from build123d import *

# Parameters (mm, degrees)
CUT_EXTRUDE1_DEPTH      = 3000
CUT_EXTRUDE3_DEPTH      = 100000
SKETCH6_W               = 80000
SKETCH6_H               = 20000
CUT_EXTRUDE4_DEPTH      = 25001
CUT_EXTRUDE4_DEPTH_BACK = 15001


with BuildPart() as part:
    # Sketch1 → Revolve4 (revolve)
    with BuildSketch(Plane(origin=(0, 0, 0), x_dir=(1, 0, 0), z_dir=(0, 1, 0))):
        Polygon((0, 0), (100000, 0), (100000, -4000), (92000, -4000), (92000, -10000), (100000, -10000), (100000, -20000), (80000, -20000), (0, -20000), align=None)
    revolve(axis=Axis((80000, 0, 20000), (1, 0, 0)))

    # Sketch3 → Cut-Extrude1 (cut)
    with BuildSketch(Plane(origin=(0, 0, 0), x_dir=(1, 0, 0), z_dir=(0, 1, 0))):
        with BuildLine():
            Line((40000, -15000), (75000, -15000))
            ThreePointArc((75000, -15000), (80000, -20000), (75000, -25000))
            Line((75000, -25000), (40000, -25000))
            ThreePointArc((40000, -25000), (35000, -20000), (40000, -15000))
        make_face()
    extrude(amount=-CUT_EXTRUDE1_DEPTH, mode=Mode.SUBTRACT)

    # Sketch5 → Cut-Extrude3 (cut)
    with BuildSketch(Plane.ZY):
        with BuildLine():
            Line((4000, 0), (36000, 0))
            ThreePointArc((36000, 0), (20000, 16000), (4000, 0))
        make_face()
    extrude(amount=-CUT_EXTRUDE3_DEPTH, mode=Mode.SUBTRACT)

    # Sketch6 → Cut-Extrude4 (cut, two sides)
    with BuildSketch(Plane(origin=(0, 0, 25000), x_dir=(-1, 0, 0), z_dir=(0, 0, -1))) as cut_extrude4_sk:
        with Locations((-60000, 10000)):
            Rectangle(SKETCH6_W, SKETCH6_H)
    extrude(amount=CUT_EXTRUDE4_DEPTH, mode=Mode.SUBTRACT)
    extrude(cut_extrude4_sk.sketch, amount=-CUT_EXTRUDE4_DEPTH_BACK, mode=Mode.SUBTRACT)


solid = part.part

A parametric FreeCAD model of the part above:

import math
import FreeCAD as App
import Part
import Sketcher

V = App.Vector

doc = App.newDocument("Part")
params = doc.addObject("Spreadsheet::Sheet", "Params")
for row, (alias, value) in enumerate([
    ("sketch1_width", "100000 mm"),
    ("sketch1_width2", "8000 mm"),
    ("sketch1_height", "20000 mm"),
    ("sketch1_height2", "10000 mm"),
    ("sketch1_height3", "6000 mm"),
    ("revolution_angle", "360 deg"),
    ("sketch2_radius", "5000 mm"),
    ("sketch2_width", "35000 mm"),
    ("pocket1_length", "3000 mm"),
    ("sketch3_radius", "16000 mm"),
    ("pocket2_length", "100000 mm"),
    ("sketch4_width", "80000 mm"),
    ("sketch4_height", "20000 mm"),
], start=1):
    params.set(f"A{row}", alias)
    params.set(f"B{row}", "=" + value)
    params.setAlias(f"B{row}", alias)

body = doc.addObject("PartDesign::Body", "Body")

# Sketch on XZ plane
sketch1 = doc.addObject("Sketcher::SketchObject", "Sketch")
body.addObject(sketch1)
sketch1.AttachmentSupport = (doc.XZ_Plane, [""])
sketch1.MapMode = "FlatFace"
sketch1.addGeometry(Part.LineSegment(V(100000, 0, 0), V(0, 0, 0)), False)
sketch1.addGeometry(Part.LineSegment(V(0, 0, 0), V(0, 20000, 0)), False)
sketch1.addGeometry(Part.LineSegment(V(0, 20000, 0), V(100000, 20000, 0)), False)
sketch1.addGeometry(Part.LineSegment(V(100000, 20000, 0), V(100000, 10000, 0)), False)
sketch1.addGeometry(Part.LineSegment(V(100000, 10000, 0), V(92000, 10000, 0)), False)
sketch1.addGeometry(Part.LineSegment(V(92000, 10000, 0), V(92000, 4000, 0)), False)
sketch1.addGeometry(Part.LineSegment(V(92000, 4000, 0), V(100000, 4000, 0)), False)
sketch1.addGeometry(Part.LineSegment(V(100000, 4000, 0), V(100000, 0, 0)), False)
sketch1.addGeometry(Part.LineSegment(V(0, 20000, 0), V(100000, 20000, 0)), True)  # axis
sketch1.addConstraint(Sketcher.Constraint("Coincident", 0, 2, 1, 1))
sketch1.addConstraint(Sketcher.Constraint("Coincident", 1, 2, 2, 1))
sketch1.addConstraint(Sketcher.Constraint("Coincident", 2, 2, 3, 1))
sketch1.addConstraint(Sketcher.Constraint("Coincident", 3, 2, 4, 1))
sketch1.addConstraint(Sketcher.Constraint("Coincident", 4, 2, 5, 1))
sketch1.addConstraint(Sketcher.Constraint("Coincident", 5, 2, 6, 1))
sketch1.addConstraint(Sketcher.Constraint("Coincident", 6, 2, 7, 1))
sketch1.addConstraint(Sketcher.Constraint("Coincident", 7, 2, 0, 1))
sketch1.addConstraint(Sketcher.Constraint("Horizontal", 0))
sketch1.addConstraint(Sketcher.Constraint("Vertical", 1))
sketch1.addConstraint(Sketcher.Constraint("Horizontal", 2))
sketch1.addConstraint(Sketcher.Constraint("Vertical", 3))
sketch1.addConstraint(Sketcher.Constraint("Horizontal", 4))
sketch1.addConstraint(Sketcher.Constraint("Vertical", 5))
sketch1.addConstraint(Sketcher.Constraint("Horizontal", 6))
sketch1.addConstraint(Sketcher.Constraint("Vertical", 7))
sketch1.addConstraint(Sketcher.Constraint("Horizontal", 8))
sketch1.addConstraint(Sketcher.Constraint("Coincident", 0, 2, -1, 1))
sketch1.addConstraint(Sketcher.Constraint("Coincident", 8, 1, 1, 2))
sketch1.addConstraint(Sketcher.Constraint("Vertical", 3, 2, 6, 2))
sketch1.addConstraint(Sketcher.Constraint("Vertical", 7, 2, 8, 2))
sketch1.addConstraint(Sketcher.Constraint("DistanceX", 0, 2, 0, 1, 100000.0))
sketch1.addConstraint(Sketcher.Constraint("DistanceX", 4, 2, 4, 1, 8000.0))
sketch1.addConstraint(Sketcher.Constraint("DistanceY", 1, 1, 1, 2, 20000.0))
sketch1.addConstraint(Sketcher.Constraint("DistanceY", 3, 2, 3, 1, 10000.0))
sketch1.addConstraint(Sketcher.Constraint("DistanceY", 5, 2, 5, 1, 6000.0))
sketch1.setExpression("Constraints[21]", "Params.sketch1_width")
sketch1.setExpression("Constraints[22]", "Params.sketch1_width2")
sketch1.setExpression("Constraints[23]", "Params.sketch1_height")
sketch1.setExpression("Constraints[24]", "Params.sketch1_height2")
sketch1.setExpression("Constraints[25]", "Params.sketch1_height3")
revolution = doc.addObject("PartDesign::Revolution", "Revolution")
body.addObject(revolution)
revolution.Profile = sketch1
revolution.ReferenceAxis = (sketch1, ["Axis0"])
revolution.setExpression("Angle", "Params.revolution_angle")

# Sketch on XZ plane
sketch2 = doc.addObject("Sketcher::SketchObject", "Sketch001")
body.addObject(sketch2)
sketch2.AttachmentSupport = (doc.XZ_Plane, [""])
sketch2.MapMode = "FlatFace"
sketch2.addGeometry(Part.LineSegment(V(75000, 15000, 0), V(40000, 15000, 0)), False)
sketch2.addGeometry(Part.ArcOfCircle(Part.Circle(V(40000, 20000, 0), V(0, 0, 1), 5000), math.radians(90), math.radians(270)), False)
sketch2.addGeometry(Part.LineSegment(V(40000, 25000, 0), V(75000, 25000, 0)), False)
sketch2.addGeometry(Part.ArcOfCircle(Part.Circle(V(75000, 20000, 0), V(0, 0, 1), 5000), math.radians(-90), math.radians(90)), False)
sketch2.addConstraint(Sketcher.Constraint("Coincident", 0, 2, 1, 2))
sketch2.addConstraint(Sketcher.Constraint("Coincident", 1, 1, 2, 1))
sketch2.addConstraint(Sketcher.Constraint("Coincident", 2, 2, 3, 2))
sketch2.addConstraint(Sketcher.Constraint("Coincident", 3, 1, 0, 1))
sketch2.addConstraint(Sketcher.Constraint("Horizontal", 0))
sketch2.addConstraint(Sketcher.Constraint("Horizontal", 2))
sketch2.addConstraint(Sketcher.Constraint("Vertical", 1, 3, 0, 2))
sketch2.addConstraint(Sketcher.Constraint("Vertical", 3, 3, 2, 2))
sketch2.addConstraint(Sketcher.Constraint("Equal", 0, 2))
sketch2.addConstraint(Sketcher.Constraint("Radius", 1, 5000.0))
sketch2.addConstraint(Sketcher.Constraint("DistanceX", 0, 2, 0, 1, 35000.0))
sketch2.addConstraint(Sketcher.Constraint("DistanceX", -1, 1, 1, 3, 40000.0))
sketch2.addConstraint(Sketcher.Constraint("DistanceY", -1, 1, 1, 3, 20000.0))
sketch2.addConstraint(Sketcher.Constraint("DistanceX", -1, 1, 3, 3, 75000.0))
sketch2.setExpression("Constraints[9]", "Params.sketch2_radius")
sketch2.setExpression("Constraints[10]", "Params.sketch2_width")
pocket1 = doc.addObject("PartDesign::Pocket", "Pocket")
body.addObject(pocket1)
pocket1.Profile = sketch2
pocket1.setExpression("Length", "Params.pocket1_length")
pocket1.Reversed = True

# Sketch on YZ plane
sketch3 = doc.addObject("Sketcher::SketchObject", "Sketch002")
body.addObject(sketch3)
sketch3.AttachmentSupport = (doc.YZ_Plane, [""])
sketch3.MapMode = "FlatFace"
sketch3.addGeometry(Part.LineSegment(V(0, 4000, 0), V(0, 36000, 0)), False)
sketch3.addGeometry(Part.ArcOfCircle(Part.Circle(V(0, 20000, 0), V(0, 0, 1), 16000), math.radians(-90), math.radians(90)), False)
sketch3.addConstraint(Sketcher.Constraint("Coincident", 0, 1, 1, 1))
sketch3.addConstraint(Sketcher.Constraint("Coincident", 1, 2, 0, 2))
sketch3.addConstraint(Sketcher.Constraint("Vertical", 0))
sketch3.addConstraint(Sketcher.Constraint("PointOnObject", 1, 3, -2))
sketch3.addConstraint(Sketcher.Constraint("PointOnObject", 0, 1, -2))
sketch3.addConstraint(Sketcher.Constraint("Radius", 1, 16000.0))
sketch3.addConstraint(Sketcher.Constraint("DistanceY", -1, 1, 1, 3, 20000.0))
sketch3.setExpression("Constraints[5]", "Params.sketch3_radius")
pocket2 = doc.addObject("PartDesign::Pocket", "Pocket001")
body.addObject(pocket2)
pocket2.Profile = sketch3
pocket2.setExpression("Length", "Params.pocket2_length")
pocket2.Reversed = True

# Sketch on XY plane
sketch4 = doc.addObject("Sketcher::SketchObject", "Sketch003")
body.addObject(sketch4)
sketch4.AttachmentSupport = (doc.XY_Plane, [""])
sketch4.MapMode = "FlatFace"
sketch4.AttachmentOffset = App.Placement(V(0, 0, 25000), App.Rotation())
sketch4.addGeometry(Part.LineSegment(V(100000, 20000, 0), V(100000, 0, 0)), False)
sketch4.addGeometry(Part.LineSegment(V(100000, 0, 0), V(20000, 0, 0)), False)
sketch4.addGeometry(Part.LineSegment(V(20000, 0, 0), V(20000, 20000, 0)), False)
sketch4.addGeometry(Part.LineSegment(V(20000, 20000, 0), V(100000, 20000, 0)), False)
sketch4.addConstraint(Sketcher.Constraint("Coincident", 0, 2, 1, 1))
sketch4.addConstraint(Sketcher.Constraint("Coincident", 1, 2, 2, 1))
sketch4.addConstraint(Sketcher.Constraint("Coincident", 2, 2, 3, 1))
sketch4.addConstraint(Sketcher.Constraint("Coincident", 3, 2, 0, 1))
sketch4.addConstraint(Sketcher.Constraint("Vertical", 0))
sketch4.addConstraint(Sketcher.Constraint("Horizontal", 1))
sketch4.addConstraint(Sketcher.Constraint("Vertical", 2))
sketch4.addConstraint(Sketcher.Constraint("Horizontal", 3))
sketch4.addConstraint(Sketcher.Constraint("PointOnObject", 0, 2, -1))
sketch4.addConstraint(Sketcher.Constraint("DistanceX", 1, 2, 1, 1, 80000.0))
sketch4.addConstraint(Sketcher.Constraint("DistanceY", 0, 2, 0, 1, 20000.0))
sketch4.addConstraint(Sketcher.Constraint("DistanceX", -1, 1, 0, 2, 100000.0))
sketch4.setExpression("Constraints[9]", "Params.sketch4_width")
sketch4.setExpression("Constraints[10]", "Params.sketch4_height")
pocket3 = doc.addObject("PartDesign::Pocket", "Pocket002")
body.addObject(pocket3)
pocket3.Profile = sketch4
pocket3.Type = "ThroughAll"
pocket3.Midplane = True

doc.recompute()
